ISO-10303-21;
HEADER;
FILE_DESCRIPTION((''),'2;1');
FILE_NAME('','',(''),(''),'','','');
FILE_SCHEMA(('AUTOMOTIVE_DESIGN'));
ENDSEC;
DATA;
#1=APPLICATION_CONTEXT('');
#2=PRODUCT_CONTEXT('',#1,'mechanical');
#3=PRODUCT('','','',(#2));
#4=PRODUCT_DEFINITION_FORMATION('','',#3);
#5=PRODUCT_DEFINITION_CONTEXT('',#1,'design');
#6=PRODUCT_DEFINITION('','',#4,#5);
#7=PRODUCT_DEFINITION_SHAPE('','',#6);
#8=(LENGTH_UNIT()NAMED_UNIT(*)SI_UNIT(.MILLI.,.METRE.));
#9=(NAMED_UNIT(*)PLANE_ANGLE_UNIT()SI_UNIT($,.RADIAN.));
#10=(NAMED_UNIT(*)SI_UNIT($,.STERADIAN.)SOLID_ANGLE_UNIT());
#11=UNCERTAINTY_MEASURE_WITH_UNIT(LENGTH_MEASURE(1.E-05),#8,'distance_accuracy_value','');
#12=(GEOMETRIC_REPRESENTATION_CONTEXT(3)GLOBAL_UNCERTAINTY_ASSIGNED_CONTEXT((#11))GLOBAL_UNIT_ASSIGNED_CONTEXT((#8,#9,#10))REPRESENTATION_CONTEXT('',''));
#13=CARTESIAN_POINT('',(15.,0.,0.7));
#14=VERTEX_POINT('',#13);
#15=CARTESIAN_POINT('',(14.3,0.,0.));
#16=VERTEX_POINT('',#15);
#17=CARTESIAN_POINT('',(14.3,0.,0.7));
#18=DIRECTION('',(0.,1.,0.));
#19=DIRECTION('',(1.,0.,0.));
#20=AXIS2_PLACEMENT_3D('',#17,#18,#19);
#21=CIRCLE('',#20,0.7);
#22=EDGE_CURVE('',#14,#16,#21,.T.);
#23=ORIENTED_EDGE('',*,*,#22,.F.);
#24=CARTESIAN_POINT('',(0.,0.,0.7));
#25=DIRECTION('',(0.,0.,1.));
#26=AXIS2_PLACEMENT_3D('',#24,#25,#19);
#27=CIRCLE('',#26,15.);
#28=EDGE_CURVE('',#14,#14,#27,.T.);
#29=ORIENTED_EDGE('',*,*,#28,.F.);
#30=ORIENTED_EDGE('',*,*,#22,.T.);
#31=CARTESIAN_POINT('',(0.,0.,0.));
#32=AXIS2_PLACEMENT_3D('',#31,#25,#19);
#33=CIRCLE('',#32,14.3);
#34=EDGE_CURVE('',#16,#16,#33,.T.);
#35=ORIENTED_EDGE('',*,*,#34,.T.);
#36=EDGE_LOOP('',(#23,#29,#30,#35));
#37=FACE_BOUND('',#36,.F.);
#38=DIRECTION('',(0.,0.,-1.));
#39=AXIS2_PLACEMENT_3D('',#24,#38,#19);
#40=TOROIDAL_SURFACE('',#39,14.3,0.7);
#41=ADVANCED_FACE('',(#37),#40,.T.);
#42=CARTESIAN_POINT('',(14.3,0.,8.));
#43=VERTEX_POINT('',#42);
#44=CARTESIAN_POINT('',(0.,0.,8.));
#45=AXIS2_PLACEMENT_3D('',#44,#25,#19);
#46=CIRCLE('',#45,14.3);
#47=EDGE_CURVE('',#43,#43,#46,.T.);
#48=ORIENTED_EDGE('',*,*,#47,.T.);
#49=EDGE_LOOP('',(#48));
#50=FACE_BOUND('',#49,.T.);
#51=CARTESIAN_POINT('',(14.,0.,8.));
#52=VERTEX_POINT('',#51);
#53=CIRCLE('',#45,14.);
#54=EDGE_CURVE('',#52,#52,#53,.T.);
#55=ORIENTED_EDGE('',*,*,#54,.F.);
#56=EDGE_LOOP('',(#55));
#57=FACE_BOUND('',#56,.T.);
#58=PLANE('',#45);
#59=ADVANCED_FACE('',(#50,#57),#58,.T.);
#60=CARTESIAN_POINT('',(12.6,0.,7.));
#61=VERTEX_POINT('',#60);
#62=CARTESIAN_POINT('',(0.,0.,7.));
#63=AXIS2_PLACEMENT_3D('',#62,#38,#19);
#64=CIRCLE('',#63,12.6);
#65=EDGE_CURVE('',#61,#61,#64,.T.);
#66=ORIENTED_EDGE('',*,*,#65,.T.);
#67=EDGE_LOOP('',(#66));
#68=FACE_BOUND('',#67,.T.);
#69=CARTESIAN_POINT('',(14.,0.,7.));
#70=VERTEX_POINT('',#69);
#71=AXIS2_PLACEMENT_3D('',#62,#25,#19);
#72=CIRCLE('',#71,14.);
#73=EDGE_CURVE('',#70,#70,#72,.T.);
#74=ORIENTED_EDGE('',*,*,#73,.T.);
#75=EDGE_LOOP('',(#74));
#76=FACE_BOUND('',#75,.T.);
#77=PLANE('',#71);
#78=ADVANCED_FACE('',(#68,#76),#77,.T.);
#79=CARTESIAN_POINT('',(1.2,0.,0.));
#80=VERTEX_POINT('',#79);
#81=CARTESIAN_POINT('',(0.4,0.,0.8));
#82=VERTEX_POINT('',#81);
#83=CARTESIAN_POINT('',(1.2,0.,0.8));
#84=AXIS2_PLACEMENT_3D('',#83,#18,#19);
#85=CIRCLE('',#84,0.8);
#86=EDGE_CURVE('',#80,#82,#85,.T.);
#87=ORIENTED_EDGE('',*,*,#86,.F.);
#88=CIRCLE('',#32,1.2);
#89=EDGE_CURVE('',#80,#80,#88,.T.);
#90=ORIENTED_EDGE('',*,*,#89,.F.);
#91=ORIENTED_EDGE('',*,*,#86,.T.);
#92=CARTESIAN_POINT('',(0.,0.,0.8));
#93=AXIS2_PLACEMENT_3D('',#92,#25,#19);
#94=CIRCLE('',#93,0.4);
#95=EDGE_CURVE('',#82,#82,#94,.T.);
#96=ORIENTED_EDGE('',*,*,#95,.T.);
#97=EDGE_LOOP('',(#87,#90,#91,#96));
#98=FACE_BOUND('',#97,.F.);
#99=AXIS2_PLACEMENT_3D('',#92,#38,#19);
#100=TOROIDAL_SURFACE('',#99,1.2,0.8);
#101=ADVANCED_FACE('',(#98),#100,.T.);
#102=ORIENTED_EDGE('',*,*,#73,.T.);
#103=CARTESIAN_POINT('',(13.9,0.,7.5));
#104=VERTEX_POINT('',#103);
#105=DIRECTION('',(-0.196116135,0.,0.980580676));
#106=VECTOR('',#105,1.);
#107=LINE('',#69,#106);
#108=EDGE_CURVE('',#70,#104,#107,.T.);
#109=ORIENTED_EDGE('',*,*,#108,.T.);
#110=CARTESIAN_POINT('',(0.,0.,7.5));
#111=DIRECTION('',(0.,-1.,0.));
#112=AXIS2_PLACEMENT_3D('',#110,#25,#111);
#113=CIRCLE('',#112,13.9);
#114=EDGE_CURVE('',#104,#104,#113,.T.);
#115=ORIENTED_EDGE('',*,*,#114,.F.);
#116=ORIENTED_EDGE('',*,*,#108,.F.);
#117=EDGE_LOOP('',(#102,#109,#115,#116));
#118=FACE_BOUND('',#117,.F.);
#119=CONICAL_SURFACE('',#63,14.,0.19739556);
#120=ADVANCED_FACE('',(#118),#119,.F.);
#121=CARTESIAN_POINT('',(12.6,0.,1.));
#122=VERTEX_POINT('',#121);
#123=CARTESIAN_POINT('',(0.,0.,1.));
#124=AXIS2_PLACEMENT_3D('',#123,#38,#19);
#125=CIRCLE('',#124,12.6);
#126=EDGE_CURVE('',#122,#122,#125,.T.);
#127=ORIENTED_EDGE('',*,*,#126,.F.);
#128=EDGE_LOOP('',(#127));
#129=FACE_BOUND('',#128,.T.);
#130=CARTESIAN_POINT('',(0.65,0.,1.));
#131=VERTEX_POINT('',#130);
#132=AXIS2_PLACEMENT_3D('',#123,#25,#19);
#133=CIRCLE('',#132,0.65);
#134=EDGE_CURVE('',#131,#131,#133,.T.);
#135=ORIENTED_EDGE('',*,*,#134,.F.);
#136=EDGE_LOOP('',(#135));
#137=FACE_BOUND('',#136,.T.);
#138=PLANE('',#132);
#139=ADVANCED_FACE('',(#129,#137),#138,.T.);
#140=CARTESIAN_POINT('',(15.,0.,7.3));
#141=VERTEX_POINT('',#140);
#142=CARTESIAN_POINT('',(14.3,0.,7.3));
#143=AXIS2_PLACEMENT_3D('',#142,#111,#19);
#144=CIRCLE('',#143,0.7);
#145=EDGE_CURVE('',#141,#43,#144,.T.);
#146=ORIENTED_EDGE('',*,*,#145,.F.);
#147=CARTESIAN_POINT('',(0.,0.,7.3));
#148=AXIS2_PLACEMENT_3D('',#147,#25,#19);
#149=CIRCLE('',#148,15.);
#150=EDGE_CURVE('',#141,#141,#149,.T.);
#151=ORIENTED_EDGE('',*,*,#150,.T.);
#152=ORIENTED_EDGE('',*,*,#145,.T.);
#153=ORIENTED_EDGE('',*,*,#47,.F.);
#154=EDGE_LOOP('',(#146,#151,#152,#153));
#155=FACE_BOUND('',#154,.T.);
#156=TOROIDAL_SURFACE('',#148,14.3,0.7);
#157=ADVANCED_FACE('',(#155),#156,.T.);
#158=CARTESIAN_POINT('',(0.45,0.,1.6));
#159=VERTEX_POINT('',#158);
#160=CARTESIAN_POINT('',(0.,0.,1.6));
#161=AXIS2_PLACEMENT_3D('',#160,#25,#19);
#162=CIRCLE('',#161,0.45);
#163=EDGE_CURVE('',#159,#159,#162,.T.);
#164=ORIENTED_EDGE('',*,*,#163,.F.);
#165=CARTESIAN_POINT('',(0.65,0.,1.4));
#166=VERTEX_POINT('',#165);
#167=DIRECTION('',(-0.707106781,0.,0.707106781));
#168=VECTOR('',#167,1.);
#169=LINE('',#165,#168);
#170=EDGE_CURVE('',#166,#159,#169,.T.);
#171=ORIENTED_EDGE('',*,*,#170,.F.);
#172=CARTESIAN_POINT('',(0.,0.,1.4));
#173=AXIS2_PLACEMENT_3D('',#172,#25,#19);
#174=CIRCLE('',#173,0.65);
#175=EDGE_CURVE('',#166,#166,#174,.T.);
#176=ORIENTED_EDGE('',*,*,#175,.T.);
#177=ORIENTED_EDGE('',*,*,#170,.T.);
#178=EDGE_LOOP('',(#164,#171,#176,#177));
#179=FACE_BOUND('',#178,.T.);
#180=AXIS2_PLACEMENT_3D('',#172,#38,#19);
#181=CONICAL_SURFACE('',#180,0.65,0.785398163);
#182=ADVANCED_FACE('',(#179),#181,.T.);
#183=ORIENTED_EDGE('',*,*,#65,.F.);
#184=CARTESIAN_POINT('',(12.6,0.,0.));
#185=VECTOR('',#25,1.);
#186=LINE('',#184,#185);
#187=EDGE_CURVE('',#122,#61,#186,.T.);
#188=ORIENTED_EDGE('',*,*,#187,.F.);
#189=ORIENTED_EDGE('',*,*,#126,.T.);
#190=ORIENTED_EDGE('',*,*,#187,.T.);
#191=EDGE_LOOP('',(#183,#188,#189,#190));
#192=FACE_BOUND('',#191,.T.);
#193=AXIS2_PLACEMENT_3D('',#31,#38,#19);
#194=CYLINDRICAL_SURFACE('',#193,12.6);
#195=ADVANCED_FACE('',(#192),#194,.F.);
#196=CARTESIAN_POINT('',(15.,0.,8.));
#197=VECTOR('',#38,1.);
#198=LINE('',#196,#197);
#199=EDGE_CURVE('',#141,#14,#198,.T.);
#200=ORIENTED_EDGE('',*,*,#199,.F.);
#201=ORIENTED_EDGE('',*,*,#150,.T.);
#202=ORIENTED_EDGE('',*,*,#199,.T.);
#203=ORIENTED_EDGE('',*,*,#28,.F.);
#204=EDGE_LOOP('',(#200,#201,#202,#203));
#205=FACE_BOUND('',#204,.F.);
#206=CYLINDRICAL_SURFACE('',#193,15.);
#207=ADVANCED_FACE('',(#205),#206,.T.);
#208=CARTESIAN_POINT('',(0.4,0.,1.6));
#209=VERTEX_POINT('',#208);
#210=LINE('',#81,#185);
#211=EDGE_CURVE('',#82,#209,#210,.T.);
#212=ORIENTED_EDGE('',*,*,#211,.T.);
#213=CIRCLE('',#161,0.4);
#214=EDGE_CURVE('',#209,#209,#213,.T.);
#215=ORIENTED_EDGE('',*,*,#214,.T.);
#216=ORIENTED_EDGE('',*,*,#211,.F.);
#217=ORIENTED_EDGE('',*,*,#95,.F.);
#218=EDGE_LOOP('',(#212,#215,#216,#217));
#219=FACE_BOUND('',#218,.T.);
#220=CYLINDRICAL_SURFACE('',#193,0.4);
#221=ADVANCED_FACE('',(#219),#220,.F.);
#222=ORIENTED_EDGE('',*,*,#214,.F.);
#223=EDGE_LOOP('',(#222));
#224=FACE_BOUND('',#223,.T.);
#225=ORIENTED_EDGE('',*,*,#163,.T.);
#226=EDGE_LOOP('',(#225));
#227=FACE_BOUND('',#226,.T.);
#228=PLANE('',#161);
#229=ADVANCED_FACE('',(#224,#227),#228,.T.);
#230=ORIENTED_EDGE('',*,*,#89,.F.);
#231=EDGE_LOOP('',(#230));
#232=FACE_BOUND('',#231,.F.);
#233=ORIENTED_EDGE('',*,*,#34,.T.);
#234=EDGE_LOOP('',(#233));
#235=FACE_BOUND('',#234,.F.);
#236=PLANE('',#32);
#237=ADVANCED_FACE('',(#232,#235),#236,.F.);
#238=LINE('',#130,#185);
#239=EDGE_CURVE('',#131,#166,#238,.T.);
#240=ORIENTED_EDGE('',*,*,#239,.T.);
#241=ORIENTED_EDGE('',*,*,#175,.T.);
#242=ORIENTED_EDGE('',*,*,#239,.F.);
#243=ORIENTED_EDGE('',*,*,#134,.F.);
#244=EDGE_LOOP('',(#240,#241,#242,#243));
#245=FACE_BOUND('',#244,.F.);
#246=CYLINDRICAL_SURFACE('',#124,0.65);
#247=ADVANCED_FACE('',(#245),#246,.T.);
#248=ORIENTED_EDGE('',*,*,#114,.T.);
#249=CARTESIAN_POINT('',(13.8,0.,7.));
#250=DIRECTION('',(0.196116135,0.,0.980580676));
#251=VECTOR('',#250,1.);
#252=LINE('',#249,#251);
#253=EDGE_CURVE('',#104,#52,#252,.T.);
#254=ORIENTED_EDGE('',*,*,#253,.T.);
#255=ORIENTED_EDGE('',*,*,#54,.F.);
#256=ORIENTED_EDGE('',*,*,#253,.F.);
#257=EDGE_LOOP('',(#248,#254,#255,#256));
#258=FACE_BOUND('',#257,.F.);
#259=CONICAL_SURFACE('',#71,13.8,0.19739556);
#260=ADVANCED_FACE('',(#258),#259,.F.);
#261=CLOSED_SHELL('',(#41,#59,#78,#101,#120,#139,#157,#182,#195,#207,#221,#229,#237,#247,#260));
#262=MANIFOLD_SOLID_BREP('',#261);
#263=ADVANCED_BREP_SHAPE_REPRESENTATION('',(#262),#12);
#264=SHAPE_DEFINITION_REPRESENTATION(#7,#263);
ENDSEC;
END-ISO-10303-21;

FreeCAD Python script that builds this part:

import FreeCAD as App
import Part
import Sketcher


def edges_at(feature, points):
    """Names of the edges that pass closest to the given points."""
    edges = feature.Shape.Edges
    near = lambda p: min(range(len(edges)), key=lambda i: edges[i].distToShape(Part.Vertex(*p))[0])
    return sorted({f"Edge{near(p) + 1}" for p in points})


def add_polygon(sketch, points):
    """Adds a closed chain of lines whose ends are joined by coincident constraints."""
    first, n = sketch.GeometryCount, len(points)
    for a, b in zip(points, points[1:] + points[:1]):
        sketch.addGeometry(Part.LineSegment(App.Vector(*a, 0), App.Vector(*b, 0)), False)
    for i in range(n):
        sketch.addConstraint(Sketcher.Constraint("Coincident", first + i, 2, first + (i + 1) % n, 1))

doc = App.newDocument("Part")
body = doc.addObject("PartDesign::Body", "Body")

sketch1 = body.newObject("Sketcher::SketchObject", "Sketch")
sketch1.AttachmentSupport = (doc.getObject("XZ_Plane"), [""])
sketch1.MapMode = "FlatFace"
add_polygon(sketch1, [(0, 7), (13.8, 7), (14, 8), (0, 8)])
sketch1.addConstraint([
    Sketcher.Constraint("Horizontal", 0),
    Sketcher.Constraint("Horizontal", 2),
    Sketcher.Constraint("Vertical", 3),
    Sketcher.Constraint("PointOnObject", 2, 2, -2),
    Sketcher.Constraint("DistanceX", 2, 2, 2, 1, 14.0),
    Sketcher.Constraint("DistanceY", 3, 2, 3, 1, 1.0),
    Sketcher.Constraint("DistanceX", 0, 1, 0, 2, 13.8),
    Sketcher.Constraint("DistanceY", -1, 1, 0, 2, 7.0),
])
revolution = body.newObject("PartDesign::Revolution", "Revolution")
revolution.Profile = sketch1
revolution.ReferenceAxis = (sketch1, ["V_Axis"])
revolution.Angle = 360
body2 = doc.addObject("PartDesign::Body", "Body001")

sketch2 = body2.newObject("Sketcher::SketchObject", "Sketch001")
sketch2.AttachmentSupport = (doc.getObject("XZ_Plane001"), [""])
sketch2.MapMode = "FlatFace"
add_polygon(sketch2, [(0, 7), (14, 7), (13.8, 8), (0, 8)])
sketch2.addConstraint([
    Sketcher.Constraint("Horizontal", 0),
    Sketcher.Constraint("Horizontal", 2),
    Sketcher.Constraint("Vertical", 3),
    Sketcher.Constraint("PointOnObject", 2, 2, -2),
    Sketcher.Constraint("DistanceX", 0, 1, 0, 2, 14.0),
    Sketcher.Constraint("DistanceY", 3, 2, 3, 1, 1.0),
    Sketcher.Constraint("DistanceX", 2, 2, 2, 1, 13.8),
    Sketcher.Constraint("DistanceY", -1, 1, 0, 2, 7.0),
])
revolution2 = body2.newObject("PartDesign::Revolution", "Revolution001")
revolution2.Profile = sketch2
revolution2.ReferenceAxis = (sketch2, ["V_Axis"])
revolution2.Angle = 360
body3 = doc.addObject("PartDesign::Body", "Body002")

sketch3 = body3.newObject("Sketcher::SketchObject", "Sketch002")
sketch3.AttachmentSupport = (doc.getObject("XY_Plane002"), [""])
sketch3.MapMode = "FlatFace"
sketch3.AttachmentOffset = App.Placement(App.Vector(0, 0, 7), App.Rotation())
sketch3.addGeometry(Part.Circle(App.Vector(0, 0, 0), App.Vector(0, 0, 1), 14), False)
sketch3.addConstraint([
    Sketcher.Constraint("Coincident", 0, 3, -1, 1),
    Sketcher.Constraint("Diameter", 0, 28.0),
])
pad1 = body3.newObject("PartDesign::Pad", "Pad")
pad1.Profile = sketch3
pad1.Length = 1
doc.recompute()

boolean = body3.newObject("PartDesign::Boolean", "Boolean")
boolean.Type = "Cut"
boolean.addObjects([body2])
doc.recompute()

boolean2 = body3.newObject("PartDesign::Boolean", "Boolean001")
boolean2.Type = "Cut"
boolean2.addObjects([body])
body4 = doc.addObject("PartDesign::Body", "Body003")

sketch4 = body4.newObject("Sketcher::SketchObject", "Sketch003")
sketch4.AttachmentSupport = (doc.getObject("XY_Plane003"), [""])
sketch4.MapMode = "FlatFace"
sketch4.AttachmentOffset = App.Placement(App.Vector(0, 0, 7), App.Rotation())
sketch4.addGeometry(Part.Circle(App.Vector(0, 0, 0), App.Vector(0, 0, 1), 14), False)
sketch4.addConstraint([
    Sketcher.Constraint("Coincident", 0, 3, -1, 1),
    Sketcher.Constraint("Diameter", 0, 28.0),
])
pad2 = body4.newObject("PartDesign::Pad", "Pad001")
pad2.Profile = sketch4
pad2.Length = 1
body5 = doc.addObject("PartDesign::Body", "Body004")

sketch5 = body5.newObject("Sketcher::SketchObject", "Sketch004")
sketch5.AttachmentSupport = (doc.getObject("XY_Plane004"), [""])
sketch5.MapMode = "FlatFace"
sketch5.addGeometry(Part.Circle(App.Vector(0, 0, 0), App.Vector(0, 0, 1), 0.4), False)
sketch5.addConstraint([
    Sketcher.Constraint("Coincident", 0, 3, -1, 1),
    Sketcher.Constraint("Diameter", 0, 0.8),
])
pad3 = body5.newObject("PartDesign::Pad", "Pad002")
pad3.Profile = sketch5
pad3.Length = 1
body6 = doc.addObject("PartDesign::Body", "Body005")

sketch6 = body6.newObject("Sketcher::SketchObject", "Sketch005")
sketch6.AttachmentSupport = (doc.getObject("XY_Plane005"), [""])
sketch6.MapMode = "FlatFace"
sketch6.addGeometry(Part.Circle(App.Vector(0, 0, 0), App.Vector(0, 0, 1), 13), False)
sketch6.addConstraint([
    Sketcher.Constraint("Coincident", 0, 3, -1, 1),
    Sketcher.Constraint("Diameter", 0, 25.2),
])
pad4 = body6.newObject("PartDesign::Pad", "Pad003")
pad4.Profile = sketch6
pad4.Length = 8
body7 = doc.addObject("PartDesign::Body", "Body006")

sketch7 = body7.newObject("Sketcher::SketchObject", "Sketch006")
sketch7.AttachmentSupport = (doc.getObject("XY_Plane006"), [""])
sketch7.MapMode = "FlatFace"
sketch7.addGeometry(Part.Circle(App.Vector(0, 0, 0), App.Vector(0, 0, 1), 15), False)
sketch7.addConstraint([
    Sketcher.Constraint("Coincident", 0, 3, -1, 1),
    Sketcher.Constraint("Diameter", 0, 30.0),
])
pad5 = body7.newObject("PartDesign::Pad", "Pad004")
pad5.Profile = sketch7
pad5.Length = 8
doc.recompute()

boolean3 = body7.newObject("PartDesign::Boolean", "Boolean002")
boolean3.Type = "Cut"
boolean3.addObjects([body6])
body8 = doc.addObject("PartDesign::Body", "Body007")

sketch8 = body8.newObject("Sketcher::SketchObject", "Sketch007")
sketch8.AttachmentSupport = (doc.getObject("XY_Plane007"), [""])
sketch8.MapMode = "FlatFace"
sketch8.addGeometry(Part.Circle(App.Vector(0, 0, 0), App.Vector(0, 0, 1), 15), False)
sketch8.addConstraint([
    Sketcher.Constraint("Coincident", 0, 3, -1, 1),
    Sketcher.Constraint("Diameter", 0, 30.0),
])
pad6 = body8.newObject("PartDesign::Pad", "Pad005")
pad6.Profile = sketch8
pad6.Length = 1
doc.recompute()

boolean4 = body8.newObject("PartDesign::Boolean", "Boolean003")
boolean4.Type = "Fuse"
boolean4.addObjects([body7])
doc.recompute()

boolean5 = body8.newObject("PartDesign::Boolean", "Boolean004")
boolean5.Type = "Cut"
boolean5.addObjects([body5])
doc.recompute()

boolean6 = body8.newObject("PartDesign::Boolean", "Boolean005")
boolean6.Type = "Cut"
boolean6.addObjects([body4])
doc.recompute()

fillet = body8.newObject("PartDesign::Fillet", "Fillet")
fillet.Base = (boolean6, edges_at(boolean6, [(-15, 0, 8)]))
fillet.Radius = 0.7
doc.recompute()

fillet2 = body8.newObject("PartDesign::Fillet", "Fillet001")
fillet2.Base = (fillet, edges_at(fillet, [(-15, 0, 0)]))
fillet2.Radius = 0.7
doc.recompute()

fillet3 = body8.newObject("PartDesign::Fillet", "Fillet002")
fillet3.Base = (fillet2, edges_at(fillet2, [(-0.4, 0, 0)]))
fillet3.Radius = 0.8
body9 = doc.addObject("PartDesign::Body", "Body008")

sketch9 = body9.newObject("Sketcher::SketchObject", "Sketch008")
sketch9.AttachmentSupport = (doc.getObject("XY_Plane008"), [""])
sketch9.MapMode = "FlatFace"
sketch9.AttachmentOffset = App.Placement(App.Vector(0, 0, 1), App.Rotation())
sketch9.addGeometry(Part.Circle(App.Vector(0, 0, 0), App.Vector(0, 0, 1), 0.4), False)
sketch9.addConstraint([
    Sketcher.Constraint("Coincident", 0, 3, -1, 1),
    Sketcher.Constraint("Diameter", 0, 0.8),
])
pad7 = body9.newObject("PartDesign::Pad", "Pad006")
pad7.Profile = sketch9
pad7.Length = 0.6
body10 = doc.addObject("PartDesign::Body", "Body009")
body10.AllowCompound = True

sketch10 = body10.newObject("Sketcher::SketchObject", "Sketch009")
sketch10.AttachmentSupport = (doc.getObject("XY_Plane009"), [""])
sketch10.MapMode = "FlatFace"
sketch10.AttachmentOffset = App.Placement(App.Vector(0, 0, 1), App.Rotation())
sketch10.addGeometry(Part.Circle(App.Vector(0, 0, 0), App.Vector(0, 0, 1), 0.7), False)
sketch10.addConstraint([
    Sketcher.Constraint("Coincident", 0, 3, -1, 1),
    Sketcher.Constraint("Diameter", 0, 1.3),
])
pad8 = body10.newObject("PartDesign::Pad", "Pad007")
pad8.Profile = sketch10
pad8.Length = 0.6
doc.recompute()

boolean7 = body10.newObject("PartDesign::Boolean", "Boolean006")
boolean7.Type = "Cut"
boolean7.addObjects([body9])
doc.recompute()

chamfer = body10.newObject("PartDesign::Chamfer", "Chamfer")
chamfer.Base = (boolean7, edges_at(boolean7, [(-0.65, 0, 1.6)]))
chamfer.Size = 0.2
doc.recompute()

boolean8 = body10.newObject("PartDesign::Boolean", "Boolean007")
boolean8.Type = "Fuse"
boolean8.addObjects([body3])
doc.recompute()

boolean9 = body10.newObject("PartDesign::Boolean", "Boolean008")
boolean9.Type = "Fuse"
boolean9.addObjects([body8])

doc.recompute()
